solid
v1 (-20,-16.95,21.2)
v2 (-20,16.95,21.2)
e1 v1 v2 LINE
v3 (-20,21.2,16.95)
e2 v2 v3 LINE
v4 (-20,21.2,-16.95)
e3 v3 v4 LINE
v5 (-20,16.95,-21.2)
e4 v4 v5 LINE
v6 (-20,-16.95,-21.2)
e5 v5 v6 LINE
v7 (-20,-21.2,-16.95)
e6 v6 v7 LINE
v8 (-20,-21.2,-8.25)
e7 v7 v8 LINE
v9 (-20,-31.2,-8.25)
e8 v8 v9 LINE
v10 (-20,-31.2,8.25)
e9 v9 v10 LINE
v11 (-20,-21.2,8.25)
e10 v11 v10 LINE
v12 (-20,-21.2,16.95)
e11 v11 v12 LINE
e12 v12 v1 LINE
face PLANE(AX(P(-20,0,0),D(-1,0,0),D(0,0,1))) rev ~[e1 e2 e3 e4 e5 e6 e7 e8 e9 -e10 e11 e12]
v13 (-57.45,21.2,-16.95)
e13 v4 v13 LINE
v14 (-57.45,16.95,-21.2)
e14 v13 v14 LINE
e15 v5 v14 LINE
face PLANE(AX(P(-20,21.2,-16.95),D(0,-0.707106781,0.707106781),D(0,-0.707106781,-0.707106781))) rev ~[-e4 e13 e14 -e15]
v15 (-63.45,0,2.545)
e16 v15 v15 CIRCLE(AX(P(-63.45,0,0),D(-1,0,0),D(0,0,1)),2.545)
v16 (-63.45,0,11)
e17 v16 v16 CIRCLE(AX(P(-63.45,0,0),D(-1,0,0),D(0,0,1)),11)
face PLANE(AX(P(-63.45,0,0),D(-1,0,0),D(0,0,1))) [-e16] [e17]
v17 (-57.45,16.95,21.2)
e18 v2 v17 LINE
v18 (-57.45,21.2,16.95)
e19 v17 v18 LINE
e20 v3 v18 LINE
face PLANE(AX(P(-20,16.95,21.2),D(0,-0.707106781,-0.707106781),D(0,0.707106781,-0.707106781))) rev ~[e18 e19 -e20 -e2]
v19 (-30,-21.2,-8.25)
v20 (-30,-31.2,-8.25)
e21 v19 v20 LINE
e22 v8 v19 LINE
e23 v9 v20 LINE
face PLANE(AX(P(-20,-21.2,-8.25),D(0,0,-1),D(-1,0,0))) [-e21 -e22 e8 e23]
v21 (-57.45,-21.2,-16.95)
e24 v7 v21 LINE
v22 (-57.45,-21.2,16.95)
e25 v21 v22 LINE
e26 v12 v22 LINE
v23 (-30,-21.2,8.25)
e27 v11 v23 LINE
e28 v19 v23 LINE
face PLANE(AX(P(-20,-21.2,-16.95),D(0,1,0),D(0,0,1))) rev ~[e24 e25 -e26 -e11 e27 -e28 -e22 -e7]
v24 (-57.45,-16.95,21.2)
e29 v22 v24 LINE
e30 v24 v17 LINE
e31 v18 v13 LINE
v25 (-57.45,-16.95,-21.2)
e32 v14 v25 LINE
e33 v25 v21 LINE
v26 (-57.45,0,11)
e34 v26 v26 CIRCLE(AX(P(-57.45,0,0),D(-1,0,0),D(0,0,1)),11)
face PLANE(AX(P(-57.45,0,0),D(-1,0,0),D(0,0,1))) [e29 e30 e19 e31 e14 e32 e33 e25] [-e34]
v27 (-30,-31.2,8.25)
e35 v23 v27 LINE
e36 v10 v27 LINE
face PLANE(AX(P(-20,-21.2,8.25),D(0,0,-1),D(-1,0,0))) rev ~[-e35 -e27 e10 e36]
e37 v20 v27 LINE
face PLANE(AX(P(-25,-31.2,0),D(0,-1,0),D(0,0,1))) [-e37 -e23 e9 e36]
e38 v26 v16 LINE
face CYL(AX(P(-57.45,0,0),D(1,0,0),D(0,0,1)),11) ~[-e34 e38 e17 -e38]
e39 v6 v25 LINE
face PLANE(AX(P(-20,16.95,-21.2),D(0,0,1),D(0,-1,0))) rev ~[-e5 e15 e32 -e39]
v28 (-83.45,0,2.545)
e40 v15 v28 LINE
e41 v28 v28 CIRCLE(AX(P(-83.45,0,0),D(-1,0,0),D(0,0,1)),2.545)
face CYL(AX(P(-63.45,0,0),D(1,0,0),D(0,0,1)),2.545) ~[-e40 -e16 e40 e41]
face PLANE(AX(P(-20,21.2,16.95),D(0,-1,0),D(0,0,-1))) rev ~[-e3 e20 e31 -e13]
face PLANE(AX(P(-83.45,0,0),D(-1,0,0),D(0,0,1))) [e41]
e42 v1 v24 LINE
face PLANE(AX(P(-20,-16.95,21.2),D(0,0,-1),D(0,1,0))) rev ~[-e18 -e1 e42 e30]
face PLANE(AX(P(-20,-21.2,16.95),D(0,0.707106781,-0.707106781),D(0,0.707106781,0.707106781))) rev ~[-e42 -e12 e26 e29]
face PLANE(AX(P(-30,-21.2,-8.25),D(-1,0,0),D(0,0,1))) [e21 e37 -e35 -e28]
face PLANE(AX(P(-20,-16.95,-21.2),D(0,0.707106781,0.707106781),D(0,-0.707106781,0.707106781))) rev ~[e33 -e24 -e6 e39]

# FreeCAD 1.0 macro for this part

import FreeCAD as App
import Part
import Sketcher
from FreeCAD import Vector


def add_polygon(sketch, points):
    """Adds a closed chain of lines whose ends are joined by coincident constraints."""
    first, n = sketch.GeometryCount, len(points)
    for a, b in zip(points, points[1:] + points[:1]):
        sketch.addGeometry(Part.LineSegment(App.Vector(*a, 0), App.Vector(*b, 0)), False)
    for i in range(n):
        sketch.addConstraint(Sketcher.Constraint("Coincident", first + i, 2, first + (i + 1) % n, 1))

doc = App.newDocument("Part")
body = doc.addObject("PartDesign::Body", "Body")

sketch1 = doc.addObject("Sketcher::SketchObject", "Sketch")
body.addObject(sketch1)
sketch1.AttachmentSupport = (doc.XY_Plane, [""])
sketch1.MapMode = "FlatFace"
add_polygon(sketch1, [(-21.2, 16.95), (-21.2, -16.95), (-16.95, -21.2), (16.95, -21.2), (21.2, -16.95), (21.2, 16.95), (16.95, 21.2), (-16.95, 21.2)])
sketch1.addConstraint([
    Sketcher.Constraint("Vertical", 0),
    Sketcher.Constraint("Horizontal", 2),
    Sketcher.Constraint("Vertical", 4),
    Sketcher.Constraint("Horizontal", 6),
    Sketcher.Constraint("Symmetric", 0, 2, 4, 2, -1, 1),
    Sketcher.Constraint("Symmetric", 1, 2, 5, 2, -1, 1),
    Sketcher.Constraint("Perpendicular", 1, 3),
    Sketcher.Constraint("Perpendicular", 5, 7),
    Sketcher.Constraint("Horizontal", 0, 2, 3, 2),
    Sketcher.Constraint("Horizontal", 4, 2, 7, 2),
    Sketcher.Constraint("Vertical", 2, 2, 5, 2),
    Sketcher.Constraint("Equal", 6, 0),
    Sketcher.Constraint("DistanceX", 2, 1, 2, 2, 33.9),
    Sketcher.Constraint("DistanceX", 0, 2, -1, 1, 21.2),
])
pad1 = doc.addObject("PartDesign::Pad", "Pad")
body.addObject(pad1)
pad1.Profile = sketch1
pad1.Length = 37.45

sketch2 = doc.addObject("Sketcher::SketchObject", "Sketch001")
body.addObject(sketch2)
sketch2.AttachmentSupport = (doc.XZ_Plane, [""])
sketch2.MapMode = "FlatFace"
sketch2.AttachmentOffset = App.Placement(Vector(0, 0, 21.2), App.Rotation())
add_polygon(sketch2, [(-8.25, 10), (-8.25, 0), (8.25, 0), (8.25, 10)])
sketch2.addConstraint([
    Sketcher.Constraint("Vertical", 0),
    Sketcher.Constraint("Horizontal", 1),
    Sketcher.Constraint("Vertical", 2),
    Sketcher.Constraint("Horizontal", 3),
    Sketcher.Constraint("Symmetric", 0, 2, 1, 2, -1, 1),
    Sketcher.Constraint("DistanceY", 0, 2, 0, 1, 10.0),
    Sketcher.Constraint("DistanceX", 1, 1, 1, 2, 16.5),
])
pad2 = doc.addObject("PartDesign::Pad", "Pad001")
body.addObject(pad2)
pad2.Profile = sketch2
pad2.Length = 10

sketch3 = doc.addObject("Sketcher::SketchObject", "Sketch002")
body.addObject(sketch3)
sketch3.AttachmentSupport = (doc.XY_Plane, [""])
sketch3.MapMode = "FlatFace"
sketch3.AttachmentOffset = App.Placement(Vector(0, 0, 37.45), App.Rotation())
sketch3.addGeometry(Part.Circle(Vector(0, 0, 0), Vector(0, 0, 1), 11), False)
sketch3.addConstraint([
    Sketcher.Constraint("Coincident", 0, 3, -1, 1),
    Sketcher.Constraint("Diameter", 0, 22.0),
])
pad3 = doc.addObject("PartDesign::Pad", "Pad002")
body.addObject(pad3)
pad3.Profile = sketch3
pad3.Length = 6

sketch4 = doc.addObject("Sketcher::SketchObject", "Sketch003")
body.addObject(sketch4)
sketch4.AttachmentSupport = (doc.XY_Plane, [""])
sketch4.MapMode = "FlatFace"
sketch4.AttachmentOffset = App.Placement(Vector(0, 0, 43.45), App.Rotation())
sketch4.addGeometry(Part.Circle(Vector(0, 0, 0), Vector(0, 0, 1), 2.545), False)
sketch4.addConstraint([
    Sketcher.Constraint("Coincident", 0, 3, -1, 1),
    Sketcher.Constraint("Diameter", 0, 5.09),
])
pad4 = doc.addObject("PartDesign::Pad", "Pad003")
body.addObject(pad4)
pad4.Profile = sketch4
pad4.Length = 20
body2 = doc.addObject("PartDesign::Body", "Body001")
doc.recompute()

body.Placement = App.Placement(Vector(-20, 0, 0), App.Rotation(Vector(0, -1, 0), 90))
boolean = doc.addObject("PartDesign::Boolean", "Boolean")
body2.addObject(boolean)
boolean.Type = "Fuse"
boolean.addObjects([body])

doc.recompute()
